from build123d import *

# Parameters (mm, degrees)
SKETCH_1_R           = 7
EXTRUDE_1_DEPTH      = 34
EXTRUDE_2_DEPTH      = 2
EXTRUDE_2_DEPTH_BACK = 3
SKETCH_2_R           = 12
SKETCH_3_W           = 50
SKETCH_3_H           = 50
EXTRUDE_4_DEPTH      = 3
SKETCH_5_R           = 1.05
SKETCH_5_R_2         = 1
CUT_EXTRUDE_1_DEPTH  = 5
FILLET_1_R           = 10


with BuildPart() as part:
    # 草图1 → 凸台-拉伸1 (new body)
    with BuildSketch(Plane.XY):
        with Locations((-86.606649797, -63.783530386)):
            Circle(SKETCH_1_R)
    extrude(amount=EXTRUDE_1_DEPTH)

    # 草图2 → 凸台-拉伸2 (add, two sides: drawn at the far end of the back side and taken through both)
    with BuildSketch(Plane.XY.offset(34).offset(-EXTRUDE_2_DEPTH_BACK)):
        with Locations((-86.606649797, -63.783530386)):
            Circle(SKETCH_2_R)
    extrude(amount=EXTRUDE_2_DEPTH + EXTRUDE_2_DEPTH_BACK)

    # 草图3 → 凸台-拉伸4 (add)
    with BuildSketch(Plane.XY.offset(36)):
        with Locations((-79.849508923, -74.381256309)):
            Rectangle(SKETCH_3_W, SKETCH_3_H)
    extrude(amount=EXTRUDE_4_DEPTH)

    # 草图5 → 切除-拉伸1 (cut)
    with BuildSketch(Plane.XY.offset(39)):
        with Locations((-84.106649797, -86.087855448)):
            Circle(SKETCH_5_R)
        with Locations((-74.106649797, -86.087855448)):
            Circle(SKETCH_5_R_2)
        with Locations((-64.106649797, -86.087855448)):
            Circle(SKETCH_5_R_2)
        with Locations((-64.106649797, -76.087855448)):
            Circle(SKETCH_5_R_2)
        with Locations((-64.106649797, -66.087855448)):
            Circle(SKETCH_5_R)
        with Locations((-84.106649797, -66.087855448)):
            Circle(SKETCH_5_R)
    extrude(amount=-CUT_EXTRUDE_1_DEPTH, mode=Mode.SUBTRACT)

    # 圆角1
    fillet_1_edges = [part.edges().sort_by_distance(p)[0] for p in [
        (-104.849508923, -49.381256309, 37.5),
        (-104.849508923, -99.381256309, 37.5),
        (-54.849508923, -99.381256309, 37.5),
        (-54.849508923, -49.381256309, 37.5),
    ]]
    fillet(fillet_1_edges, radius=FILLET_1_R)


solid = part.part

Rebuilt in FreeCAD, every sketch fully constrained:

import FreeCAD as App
import Part
import Sketcher
from FreeCAD import Vector


def edges_at(feature, points):
    """Names of the edges that pass closest to the given points."""
    edges = feature.Shape.Edges
    near = lambda p: min(range(len(edges)), key=lambda i: edges[i].distToShape(Part.Vertex(*p))[0])
    return sorted({f"Edge{near(p) + 1}" for p in points})

doc = App.newDocument("Part")
params = doc.addObject("Spreadsheet::Sheet", "Params")
for row, (alias, value) in enumerate([
    ("sketch1_diameter", "14 mm"),
    ("pad1_length", "34 mm"),
    ("sketch2_diameter", "24 mm"),
    ("pad2_length", "2 mm"),
    ("pad2_length2", "3 mm"),
    ("sketch3_width", "50 mm"),
    ("pad3_length", "3 mm"),
    ("sketch4_diameter", "2 mm"),
    ("sketch4_diameter2", "2.1 mm"),
    ("pocket1_length", "5 mm"),
    ("fillet_radius", "10 mm"),
], start=1):
    params.set(f"A{row}", alias)
    params.set(f"B{row}", "=" + value)
    params.setAlias(f"B{row}", alias)

body = doc.addObject("PartDesign::Body", "Body")

sketch1 = body.newObject("Sketcher::SketchObject", "Sketch")
sketch1.AttachmentSupport = (doc.getObject("XY_Plane"), [""])
sketch1.MapMode = "FlatFace"
sketch1.addGeometry(Part.Circle(Vector(-87, -64, 0), Vector(0, 0, 1), 7), False)
sketch1.addConstraint(Sketcher.Constraint("Diameter", 0, 14.0))
sketch1.addConstraint(Sketcher.Constraint("DistanceX", 0, 3, -1, 1, 86.60665))
sketch1.addConstraint(Sketcher.Constraint("DistanceY", 0, 3, -1, 1, 63.78353))
sketch1.setExpression("Constraints[0]", "Params.sketch1_diameter")
pad1 = body.newObject("PartDesign::Pad", "Pad")
pad1.Profile = sketch1
pad1.setExpression("Length", "Params.pad1_length")

sketch2 = body.newObject("Sketcher::SketchObject", "Sketch001")
sketch2.AttachmentSupport = (doc.getObject("XY_Plane"), [""])
sketch2.MapMode = "FlatFace"
sketch2.AttachmentOffset = App.Placement(Vector(0, 0, 34), App.Rotation())
sketch2.addGeometry(Part.Circle(Vector(-87, -64, 0), Vector(0, 0, 1), 12), False)
sketch2.addConstraint(Sketcher.Constraint("Diameter", 0, 24.0))
sketch2.addConstraint(Sketcher.Constraint("DistanceX", 0, 3, -1, 1, 86.60665))
sketch2.addConstraint(Sketcher.Constraint("DistanceY", 0, 3, -1, 1, 63.78353))
sketch2.setExpression("Constraints[0]", "Params.sketch2_diameter")
pad2 = body.newObject("PartDesign::Pad", "Pad001")
pad2.Profile = sketch2
pad2.Type = "TwoLengths"
pad2.setExpression("Length", "Params.pad2_length")
pad2.setExpression("Length2", "Params.pad2_length2")

sketch3 = body.newObject("Sketcher::SketchObject", "Sketch002")
sketch3.AttachmentSupport = (doc.getObject("XY_Plane"), [""])
sketch3.MapMode = "FlatFace"
sketch3.AttachmentOffset = App.Placement(Vector(0, 0, 36), App.Rotation())
sketch3.addGeometry(Part.LineSegment(Vector(-105, -49, 0), Vector(-105, -99, 0)), False)
sketch3.addGeometry(Part.LineSegment(Vector(-105, -99, 0), Vector(-55, -99, 0)), False)
sketch3.addGeometry(Part.LineSegment(Vector(-55, -99, 0), Vector(-55, -49, 0)), False)
sketch3.addGeometry(Part.LineSegment(Vector(-55, -49, 0), Vector(-105, -49, 0)), False)
sketch3.addConstraint(Sketcher.Constraint("Coincident", 0, 2, 1, 1))
sketch3.addConstraint(Sketcher.Constraint("Coincident", 1, 2, 2, 1))
sketch3.addConstraint(Sketcher.Constraint("Coincident", 2, 2, 3, 1))
sketch3.addConstraint(Sketcher.Constraint("Coincident", 3, 2, 0, 1))
sketch3.addConstraint(Sketcher.Constraint("Vertical", 0))
sketch3.addConstraint(Sketcher.Constraint("Horizontal", 1))
sketch3.addConstraint(Sketcher.Constraint("Vertical", 2))
sketch3.addConstraint(Sketcher.Constraint("Horizontal", 3))
sketch3.addConstraint(Sketcher.Constraint("Equal", 3, 0))
sketch3.addConstraint(Sketcher.Constraint("DistanceX", 1, 1, 1, 2, 50.0))
sketch3.addConstraint(Sketcher.Constraint("DistanceX", 0, 2, -1, 1, 104.849509))
sketch3.addConstraint(Sketcher.Constraint("DistanceY", 0, 2, -1, 1, 99.381256))
sketch3.setExpression("Constraints[9]", "Params.sketch3_width")
pad3 = body.newObject("PartDesign::Pad", "Pad002")
pad3.Profile = sketch3
pad3.setExpression("Length", "Params.pad3_length")

sketch4 = body.newObject("Sketcher::SketchObject", "Sketch003")
sketch4.AttachmentSupport = (doc.getObject("XY_Plane"), [""])
sketch4.MapMode = "FlatFace"
sketch4.AttachmentOffset = App.Placement(Vector(0, 0, 39), App.Rotation())
sketch4.addGeometry(Part.Circle(Vector(-84.1, -86.1, 0), Vector(0, 0, 1), 1.1), False)
sketch4.addGeometry(Part.Circle(Vector(-74.1, -86.1, 0), Vector(0, 0, 1), 1), False)
sketch4.addGeometry(Part.Circle(Vector(-64.1, -86.1, 0), Vector(0, 0, 1), 1), False)
sketch4.addGeometry(Part.Circle(Vector(-64.1, -76.1, 0), Vector(0, 0, 1), 1), False)
sketch4.addGeometry(Part.Circle(Vector(-64.1, -66.1, 0), Vector(0, 0, 1), 1.1), False)
sketch4.addGeometry(Part.Circle(Vector(-84.1, -66.1, 0), Vector(0, 0, 1), 1.1), False)
sketch4.addConstraint(Sketcher.Constraint("Equal", 1, 2))
sketch4.addConstraint(Sketcher.Constraint("Equal", 2, 3))
sketch4.addConstraint(Sketcher.Constraint("Equal", 0, 4))
sketch4.addConstraint(Sketcher.Constraint("Equal", 4, 5))
sketch4.addConstraint(Sketcher.Constraint("Horizontal", 0, 3, 1, 3))
sketch4.addConstraint(Sketcher.Constraint("Horizontal", 1, 3, 2, 3))
sketch4.addConstraint(Sketcher.Constraint("Horizontal", 4, 3, 5, 3))
sketch4.addConstraint(Sketcher.Constraint("Vertical", 2, 3, 3, 3))
sketch4.addConstraint(Sketcher.Constraint("Vertical", 3, 3, 4, 3))
sketch4.addConstraint(Sketcher.Constraint("Vertical", 0, 3, 5, 3))
sketch4.addConstraint(Sketcher.Constraint("Diameter", 1, 2.0))
sketch4.addConstraint(Sketcher.Constraint("Diameter", 0, 2.1))
sketch4.addConstraint(Sketcher.Constraint("DistanceX", 0, 3, 1, 3, 10.0))
sketch4.addConstraint(Sketcher.Constraint("DistanceX", 1, 3, 2, 3, 10.0))
sketch4.addConstraint(Sketcher.Constraint("DistanceY", 2, 3, 3, 3, 10.0))
sketch4.addConstraint(Sketcher.Constraint("DistanceY", 3, 3, 4, 3, 10.0))
sketch4.addConstraint(Sketcher.Constraint("DistanceX", 0, 3, -1, 1, 84.10665))
sketch4.addConstraint(Sketcher.Constraint("DistanceY", 0, 3, -1, 1, 86.087855))
sketch4.setExpression("Constraints[10]", "Params.sketch4_diameter")
sketch4.setExpression("Constraints[11]", "Params.sketch4_diameter2")
pocket1 = body.newObject("PartDesign::Pocket", "Pocket")
pocket1.Profile = sketch4
pocket1.setExpression("Length", "Params.pocket1_length")
doc.recompute()

fillet = body.newObject("PartDesign::Fillet", "Fillet")
fillet.Base = (pocket1, edges_at(pocket1, [
    (-104.85, -49.381, 37.5),
    (-104.85, -99.381, 37.5),
    (-54.85, -99.381, 37.5),
    (-54.85, -49.381, 37.5),
]))
fillet.setExpression("Radius", "Params.fillet_radius")

doc.recompute()
